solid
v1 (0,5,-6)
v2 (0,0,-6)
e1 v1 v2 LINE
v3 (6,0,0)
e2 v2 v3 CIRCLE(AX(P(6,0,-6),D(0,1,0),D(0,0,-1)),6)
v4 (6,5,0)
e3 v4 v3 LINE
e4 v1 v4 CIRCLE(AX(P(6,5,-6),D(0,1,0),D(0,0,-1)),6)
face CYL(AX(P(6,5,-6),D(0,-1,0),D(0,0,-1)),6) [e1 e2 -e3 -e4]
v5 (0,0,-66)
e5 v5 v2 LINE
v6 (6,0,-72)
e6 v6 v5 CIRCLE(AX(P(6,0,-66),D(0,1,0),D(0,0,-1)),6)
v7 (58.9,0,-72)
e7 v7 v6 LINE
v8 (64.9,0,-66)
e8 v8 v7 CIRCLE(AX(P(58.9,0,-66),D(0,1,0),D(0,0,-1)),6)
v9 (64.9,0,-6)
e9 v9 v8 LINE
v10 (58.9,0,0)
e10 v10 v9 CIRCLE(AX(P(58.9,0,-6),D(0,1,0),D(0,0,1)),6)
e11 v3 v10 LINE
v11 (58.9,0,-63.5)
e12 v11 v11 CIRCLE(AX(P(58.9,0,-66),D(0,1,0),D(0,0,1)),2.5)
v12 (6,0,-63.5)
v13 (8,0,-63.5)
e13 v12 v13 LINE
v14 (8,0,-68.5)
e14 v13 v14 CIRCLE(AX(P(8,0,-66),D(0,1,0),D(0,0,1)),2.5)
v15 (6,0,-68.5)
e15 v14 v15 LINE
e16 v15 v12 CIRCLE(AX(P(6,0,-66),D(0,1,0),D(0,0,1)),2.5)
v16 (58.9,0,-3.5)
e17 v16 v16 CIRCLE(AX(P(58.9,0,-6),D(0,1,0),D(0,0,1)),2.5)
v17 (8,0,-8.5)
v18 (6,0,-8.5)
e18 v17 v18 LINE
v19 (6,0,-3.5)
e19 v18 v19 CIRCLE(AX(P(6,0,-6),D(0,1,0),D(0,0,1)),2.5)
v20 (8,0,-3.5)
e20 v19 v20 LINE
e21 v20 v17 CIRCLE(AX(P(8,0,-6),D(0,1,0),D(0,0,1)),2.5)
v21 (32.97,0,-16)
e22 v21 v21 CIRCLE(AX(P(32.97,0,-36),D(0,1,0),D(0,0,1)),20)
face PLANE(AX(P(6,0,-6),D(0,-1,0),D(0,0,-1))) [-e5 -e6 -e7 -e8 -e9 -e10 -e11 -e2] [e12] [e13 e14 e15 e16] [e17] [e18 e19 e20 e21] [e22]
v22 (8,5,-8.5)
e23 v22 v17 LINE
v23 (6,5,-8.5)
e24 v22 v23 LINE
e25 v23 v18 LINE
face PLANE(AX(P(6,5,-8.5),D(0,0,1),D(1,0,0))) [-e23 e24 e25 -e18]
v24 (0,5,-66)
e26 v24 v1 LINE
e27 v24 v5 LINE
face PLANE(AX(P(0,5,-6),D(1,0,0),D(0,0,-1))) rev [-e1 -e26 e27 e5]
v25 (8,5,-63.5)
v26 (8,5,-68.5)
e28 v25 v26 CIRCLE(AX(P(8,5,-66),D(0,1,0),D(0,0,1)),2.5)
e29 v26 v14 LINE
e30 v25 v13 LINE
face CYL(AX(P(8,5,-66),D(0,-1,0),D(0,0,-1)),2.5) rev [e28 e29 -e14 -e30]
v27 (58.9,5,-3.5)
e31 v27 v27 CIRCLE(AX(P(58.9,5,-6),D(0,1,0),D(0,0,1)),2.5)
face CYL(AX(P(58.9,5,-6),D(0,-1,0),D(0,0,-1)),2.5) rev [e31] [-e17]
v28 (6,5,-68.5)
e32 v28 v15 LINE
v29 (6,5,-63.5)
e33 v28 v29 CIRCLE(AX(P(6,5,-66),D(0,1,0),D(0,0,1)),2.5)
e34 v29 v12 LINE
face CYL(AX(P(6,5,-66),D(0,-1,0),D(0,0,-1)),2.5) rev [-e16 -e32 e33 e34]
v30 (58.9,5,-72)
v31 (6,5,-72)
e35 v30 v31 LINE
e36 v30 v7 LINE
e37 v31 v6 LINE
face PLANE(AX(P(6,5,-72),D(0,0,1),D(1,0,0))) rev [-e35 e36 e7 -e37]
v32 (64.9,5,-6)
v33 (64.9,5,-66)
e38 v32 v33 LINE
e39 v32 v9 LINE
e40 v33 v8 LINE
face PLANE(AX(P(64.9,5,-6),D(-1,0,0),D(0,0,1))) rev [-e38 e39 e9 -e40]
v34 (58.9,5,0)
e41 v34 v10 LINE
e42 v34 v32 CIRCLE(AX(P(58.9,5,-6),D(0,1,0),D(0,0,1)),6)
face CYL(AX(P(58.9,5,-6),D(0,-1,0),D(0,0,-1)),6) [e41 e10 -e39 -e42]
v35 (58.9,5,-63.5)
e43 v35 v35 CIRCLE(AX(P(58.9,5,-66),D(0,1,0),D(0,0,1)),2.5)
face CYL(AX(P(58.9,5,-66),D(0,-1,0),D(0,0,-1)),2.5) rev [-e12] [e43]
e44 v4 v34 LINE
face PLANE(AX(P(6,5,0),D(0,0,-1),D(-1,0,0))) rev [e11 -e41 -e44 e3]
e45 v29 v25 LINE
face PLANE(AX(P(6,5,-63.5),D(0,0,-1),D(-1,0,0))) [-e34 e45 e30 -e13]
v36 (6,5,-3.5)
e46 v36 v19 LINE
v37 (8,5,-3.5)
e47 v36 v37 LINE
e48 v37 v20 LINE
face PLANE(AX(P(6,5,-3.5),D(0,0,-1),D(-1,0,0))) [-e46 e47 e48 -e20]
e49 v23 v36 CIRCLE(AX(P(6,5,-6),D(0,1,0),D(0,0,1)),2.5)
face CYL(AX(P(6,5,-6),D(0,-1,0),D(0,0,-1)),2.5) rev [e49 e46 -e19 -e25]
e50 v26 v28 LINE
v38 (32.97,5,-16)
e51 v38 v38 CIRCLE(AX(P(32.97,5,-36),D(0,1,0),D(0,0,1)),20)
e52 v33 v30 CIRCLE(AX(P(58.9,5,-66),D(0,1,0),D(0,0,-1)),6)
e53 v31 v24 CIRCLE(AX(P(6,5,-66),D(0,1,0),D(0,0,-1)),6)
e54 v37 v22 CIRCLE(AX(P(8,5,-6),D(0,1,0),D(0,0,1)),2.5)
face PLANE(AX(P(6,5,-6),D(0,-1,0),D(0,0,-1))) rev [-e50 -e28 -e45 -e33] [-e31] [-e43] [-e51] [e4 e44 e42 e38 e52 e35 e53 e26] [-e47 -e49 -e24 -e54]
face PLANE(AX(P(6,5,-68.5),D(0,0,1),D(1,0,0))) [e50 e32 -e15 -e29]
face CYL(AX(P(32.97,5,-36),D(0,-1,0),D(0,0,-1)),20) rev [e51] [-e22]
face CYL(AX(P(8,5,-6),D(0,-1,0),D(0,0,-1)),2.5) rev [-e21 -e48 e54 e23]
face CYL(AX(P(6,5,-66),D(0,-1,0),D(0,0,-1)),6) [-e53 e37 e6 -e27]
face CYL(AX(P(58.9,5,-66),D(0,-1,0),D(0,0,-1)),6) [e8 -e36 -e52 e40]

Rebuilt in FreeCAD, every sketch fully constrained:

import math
import FreeCAD as App
import Part
import Sketcher
from FreeCAD import Vector

doc = App.newDocument("Part")
params = doc.addObject("Spreadsheet::Sheet", "Params")
for row, (alias, value) in enumerate([
    ("sketch1_diameter", "5 mm"),
    ("sketch1_diameter2", "40 mm"),
    ("sketch1_radius", "6 mm"),
    ("sketch1_width", "2 mm"),
    ("sketch1_height", "60 mm"),
    ("pad1_length", "5 mm"),
], start=1):
    params.set(f"A{row}", alias)
    params.set(f"B{row}", "=" + value)
    params.setAlias(f"B{row}", alias)

body = doc.addObject("PartDesign::Body", "Body")

# Sketch on XZ plane
sketch1 = doc.addObject("Sketcher::SketchObject", "Sketch")
body.addObject(sketch1)
sketch1.AttachmentSupport = (doc.XZ_Plane, [""])
sketch1.MapMode = "FlatFace"
sketch1.addGeometry(Part.LineSegment(Vector(6, 0, 0), Vector(58.9, 0, 0)), False)
sketch1.addGeometry(Part.ArcOfCircle(Part.Circle(Vector(58.9, -6, 0), Vector(0, 0, 1), 6), math.radians(0), math.radians(90)), False)
sketch1.addGeometry(Part.LineSegment(Vector(64.9, -6, 0), Vector(64.9, -66, 0)), False)
sketch1.addGeometry(Part.ArcOfCircle(Part.Circle(Vector(58.9, -66, 0), Vector(0, 0, 1), 6), math.radians(-90), math.radians(0)), False)
sketch1.addGeometry(Part.LineSegment(Vector(58.9, -72, 0), Vector(6, -72, 0)), False)
sketch1.addGeometry(Part.ArcOfCircle(Part.Circle(Vector(6, -66, 0), Vector(0, 0, 1), 6), math.radians(180), math.radians(270)), False)
sketch1.addGeometry(Part.LineSegment(Vector(0, -66, 0), Vector(0, -6, 0)), False)
sketch1.addGeometry(Part.ArcOfCircle(Part.Circle(Vector(6, -6, 0), Vector(0, 0, 1), 6), math.radians(90), math.radians(180)), False)
sketch1.addGeometry(Part.LineSegment(Vector(8, -3.5, 0), Vector(6, -3.5, 0)), False)
sketch1.addGeometry(Part.ArcOfCircle(Part.Circle(Vector(6, -6, 0), Vector(0, 0, 1), 2.5), math.radians(90), math.radians(270)), False)
sketch1.addGeometry(Part.LineSegment(Vector(6, -8.5, 0), Vector(8, -8.5, 0)), False)
sketch1.addGeometry(Part.ArcOfCircle(Part.Circle(Vector(8, -6, 0), Vector(0, 0, 1), 2.5), math.radians(-90), math.radians(90)), False)
sketch1.addGeometry(Part.Circle(Vector(58.9, -6, 0), Vector(0, 0, 1), 2.5), False)
sketch1.addGeometry(Part.LineSegment(Vector(8, -63.5, 0), Vector(6, -63.5, 0)), False)
sketch1.addGeometry(Part.ArcOfCircle(Part.Circle(Vector(6, -66, 0), Vector(0, 0, 1), 2.5), math.radians(90), math.radians(270)), False)
sketch1.addGeometry(Part.LineSegment(Vector(6, -68.5, 0), Vector(8, -68.5, 0)), False)
sketch1.addGeometry(Part.ArcOfCircle(Part.Circle(Vector(8, -66, 0), Vector(0, 0, 1), 2.5), math.radians(-90), math.radians(90)), False)
sketch1.addGeometry(Part.Circle(Vector(32.97, -36, 0), Vector(0, 0, 1), 20), False)
sketch1.addGeometry(Part.Circle(Vector(58.9, -66, 0), Vector(0, 0, 1), 2.5), False)
sketch1.addConstraint(Sketcher.Constraint("Tangent", 0, 2, 1, 2))
sketch1.addConstraint(Sketcher.Constraint("Tangent", 1, 1, 2, 1))
sketch1.addConstraint(Sketcher.Constraint("Tangent", 2, 2, 3, 2))
sketch1.addConstraint(Sketcher.Constraint("Tangent", 3, 1, 4, 1))
sketch1.addConstraint(Sketcher.Constraint("Tangent", 4, 2, 5, 2))
sketch1.addConstraint(Sketcher.Constraint("Tangent", 5, 1, 6, 1))
sketch1.addConstraint(Sketcher.Constraint("Tangent", 6, 2, 7, 2))
sketch1.addConstraint(Sketcher.Constraint("Tangent", 7, 1, 0, 1))
sketch1.addConstraint(Sketcher.Constraint("Tangent", 8, 2, 9, 1))
sketch1.addConstraint(Sketcher.Constraint("Tangent", 9, 2, 10, 1))
sketch1.addConstraint(Sketcher.Constraint("Tangent", 10, 2, 11, 1))
sketch1.addConstraint(Sketcher.Constraint("Tangent", 11, 2, 8, 1))
sketch1.addConstraint(Sketcher.Constraint("Tangent", 13, 2, 14, 1))
sketch1.addConstraint(Sketcher.Constraint("Tangent", 14, 2, 15, 1))
sketch1.addConstraint(Sketcher.Constraint("Tangent", 15, 2, 16, 1))
sketch1.addConstraint(Sketcher.Constraint("Tangent", 16, 2, 13, 1))
sketch1.addConstraint(Sketcher.Constraint("Horizontal", 0))
sketch1.addConstraint(Sketcher.Constraint("Vertical", 2))
sketch1.addConstraint(Sketcher.Constraint("Horizontal", 4))
sketch1.addConstraint(Sketcher.Constraint("Vertical", 6))
sketch1.addConstraint(Sketcher.Constraint("Horizontal", 8))
sketch1.addConstraint(Sketcher.Constraint("Horizontal", 10))
sketch1.addConstraint(Sketcher.Constraint("Horizontal", 13))
sketch1.addConstraint(Sketcher.Constraint("Horizontal", 15))
sketch1.addConstraint(Sketcher.Constraint("Coincident", 9, 3, 7, 3))
sketch1.addConstraint(Sketcher.Constraint("Coincident", 12, 3, 1, 3))
sketch1.addConstraint(Sketcher.Constraint("Coincident", 14, 3, 5, 3))
sketch1.addConstraint(Sketcher.Constraint("Coincident", 18, 3, 3, 3))
sketch1.addConstraint(Sketcher.Constraint("Equal", 1, 3))
sketch1.addConstraint(Sketcher.Constraint("Equal", 3, 5))
sketch1.addConstraint(Sketcher.Constraint("Equal", 5, 7))
sketch1.addConstraint(Sketcher.Constraint("Equal", 11, 12))
sketch1.addConstraint(Sketcher.Constraint("Equal", 12, 14))
sketch1.addConstraint(Sketcher.Constraint("Equal", 16, 18))
sketch1.addConstraint(Sketcher.Constraint("PointOnObject", 0, 2, -1))
sketch1.addConstraint(Sketcher.Constraint("PointOnObject", 5, 1, -2))
sketch1.addConstraint(Sketcher.Constraint("Vertical", 11, 3, 16, 3))
sketch1.addConstraint(Sketcher.Constraint("Diameter", 12, 5.0))
sketch1.addConstraint(Sketcher.Constraint("Diameter", 17, 40.0))
sketch1.addConstraint(Sketcher.Constraint("Radius", 1, 6.0))
sketch1.addConstraint(Sketcher.Constraint("DistanceX", 8, 2, 8, 1, 2.0))
sketch1.addConstraint(Sketcher.Constraint("DistanceY", 2, 2, 2, 1, 60.0))
sketch1.addConstraint(Sketcher.Constraint("DistanceX", 0, 1, 0, 2, 52.9))
sketch1.addConstraint(Sketcher.Constraint("DistanceY", 17, 3, -1, 1, 36.0))
sketch1.addConstraint(Sketcher.Constraint("DistanceX", -1, 1, 17, 3, 32.97))
sketch1.setExpression("Constraints[37]", "Params.sketch1_diameter")
sketch1.setExpression("Constraints[38]", "Params.sketch1_diameter2")
sketch1.setExpression("Constraints[39]", "Params.sketch1_radius")
sketch1.setExpression("Constraints[40]", "Params.sketch1_width")
sketch1.setExpression("Constraints[41]", "Params.sketch1_height")
pad1 = doc.addObject("PartDesign::Pad", "Pad")
body.addObject(pad1)
pad1.Profile = sketch1
pad1.setExpression("Length", "Params.pad1_length")
pad1.Reversed = True

doc.recompute()
